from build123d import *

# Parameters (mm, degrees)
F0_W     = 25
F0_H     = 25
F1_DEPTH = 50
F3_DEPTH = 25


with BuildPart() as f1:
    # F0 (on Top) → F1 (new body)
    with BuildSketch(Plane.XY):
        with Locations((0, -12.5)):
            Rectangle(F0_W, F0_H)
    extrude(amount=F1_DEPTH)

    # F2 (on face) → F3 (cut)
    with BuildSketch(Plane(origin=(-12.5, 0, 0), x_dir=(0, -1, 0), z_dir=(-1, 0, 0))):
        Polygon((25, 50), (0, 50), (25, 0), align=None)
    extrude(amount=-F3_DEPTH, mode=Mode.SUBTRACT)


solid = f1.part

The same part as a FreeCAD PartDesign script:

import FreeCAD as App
import Part
import Sketcher
Q = App.Units.Quantity

doc = App.newDocument("Part")
params = doc.addObject("Spreadsheet::Sheet", "Params")
for row, (alias, value) in enumerate([
    ("sketch1_width", "25 mm"),
    ("pad1_length", "50 mm"),
    ("sketch2_width", "25 mm"),
    ("sketch2_height", "50 mm"),
    ("pocket1_length", "25 mm"),
], start=1):
    params.set(f"A{row}", alias)
    params.set(f"B{row}", "=" + value)
    params.setAlias(f"B{row}", alias)

body = doc.addObject("PartDesign::Body", "Body")

sketch1 = body.newObject("Sketcher::SketchObject", "Sketch")
sketch1.AttachmentSupport = (doc.getObject("XY_Plane"), [""])
sketch1.MapMode = "FlatFace"
sketch1.addGeometry(Part.LineSegment(App.Vector(-12, 0, 0), App.Vector(-12, -25, 0)), False)
sketch1.addGeometry(Part.LineSegment(App.Vector(-12, -25, 0), App.Vector(12, -25, 0)), False)
sketch1.addGeometry(Part.LineSegment(App.Vector(12, -25, 0), App.Vector(12, 0, 0)), False)
sketch1.addGeometry(Part.LineSegment(App.Vector(12, 0, 0), App.Vector(-12, 0, 0)), False)
sketch1.addConstraint(Sketcher.Constraint("Coincident", 0, 2, 1, 1))
sketch1.addConstraint(Sketcher.Constraint("Coincident", 1, 2, 2, 1))
sketch1.addConstraint(Sketcher.Constraint("Coincident", 2, 2, 3, 1))
sketch1.addConstraint(Sketcher.Constraint("Coincident", 3, 2, 0, 1))
sketch1.addConstraint(Sketcher.Constraint("Vertical", 0))
sketch1.addConstraint(Sketcher.Constraint("Horizontal", 1))
sketch1.addConstraint(Sketcher.Constraint("Vertical", 2))
sketch1.addConstraint(Sketcher.Constraint("Horizontal", 3))
sketch1.addConstraint(Sketcher.Constraint("Symmetric", 2, 2, 3, 2, -1, 1))
sketch1.addConstraint(Sketcher.Constraint("Equal", 3, 0))
sketch1.addConstraint(Sketcher.Constraint("DistanceX", 1, 1, 1, 2, Q("25 mm")))
sketch1.setExpression("Constraints[10]", "Params.sketch1_width")
pad1 = body.newObject("PartDesign::Pad", "Pad")
pad1.Profile = sketch1
pad1.setExpression("Length", "Params.pad1_length")

sketch2 = body.newObject("Sketcher::SketchObject", "Sketch001")
sketch2.AttachmentSupport = (doc.getObject("YZ_Plane"), [""])
sketch2.MapMode = "FlatFace"
sketch2.AttachmentOffset = App.Placement(App.Vector(0, 0, -12.5), App.Rotation())
sketch2.addGeometry(Part.LineSegment(App.Vector(-25, 50, 0), App.Vector(0, 50, 0)), False)
sketch2.addGeometry(Part.LineSegment(App.Vector(0, 50, 0), App.Vector(-25, 0, 0)), False)
sketch2.addGeometry(Part.LineSegment(App.Vector(-25, 0, 0), App.Vector(-25, 50, 0)), False)
sketch2.addConstraint(Sketcher.Constraint("Coincident", 0, 2, 1, 1))
sketch2.addConstraint(Sketcher.Constraint("Coincident", 1, 2, 2, 1))
sketch2.addConstraint(Sketcher.Constraint("Coincident", 2, 2, 0, 1))
sketch2.addConstraint(Sketcher.Constraint("Horizontal", 0))
sketch2.addConstraint(Sketcher.Constraint("Vertical", 2))
sketch2.addConstraint(Sketcher.Constraint("PointOnObject", 0, 2, -2))
sketch2.addConstraint(Sketcher.Constraint("PointOnObject", 1, 2, -1))
sketch2.addConstraint(Sketcher.Constraint("DistanceX", 0, 1, 0, 2, Q("25 mm")))
sketch2.addConstraint(Sketcher.Constraint("DistanceY", 2, 1, 2, 2, Q("50 mm")))
sketch2.setExpression("Constraints[7]", "Params.sketch2_width")
sketch2.setExpression("Constraints[8]", "Params.sketch2_height")
pocket1 = body.newObject("PartDesign::Pocket", "Pocket")
pocket1.Profile = sketch2
pocket1.setExpression("Length", "Params.pocket1_length")
pocket1.Reversed = True

doc.recompute()
